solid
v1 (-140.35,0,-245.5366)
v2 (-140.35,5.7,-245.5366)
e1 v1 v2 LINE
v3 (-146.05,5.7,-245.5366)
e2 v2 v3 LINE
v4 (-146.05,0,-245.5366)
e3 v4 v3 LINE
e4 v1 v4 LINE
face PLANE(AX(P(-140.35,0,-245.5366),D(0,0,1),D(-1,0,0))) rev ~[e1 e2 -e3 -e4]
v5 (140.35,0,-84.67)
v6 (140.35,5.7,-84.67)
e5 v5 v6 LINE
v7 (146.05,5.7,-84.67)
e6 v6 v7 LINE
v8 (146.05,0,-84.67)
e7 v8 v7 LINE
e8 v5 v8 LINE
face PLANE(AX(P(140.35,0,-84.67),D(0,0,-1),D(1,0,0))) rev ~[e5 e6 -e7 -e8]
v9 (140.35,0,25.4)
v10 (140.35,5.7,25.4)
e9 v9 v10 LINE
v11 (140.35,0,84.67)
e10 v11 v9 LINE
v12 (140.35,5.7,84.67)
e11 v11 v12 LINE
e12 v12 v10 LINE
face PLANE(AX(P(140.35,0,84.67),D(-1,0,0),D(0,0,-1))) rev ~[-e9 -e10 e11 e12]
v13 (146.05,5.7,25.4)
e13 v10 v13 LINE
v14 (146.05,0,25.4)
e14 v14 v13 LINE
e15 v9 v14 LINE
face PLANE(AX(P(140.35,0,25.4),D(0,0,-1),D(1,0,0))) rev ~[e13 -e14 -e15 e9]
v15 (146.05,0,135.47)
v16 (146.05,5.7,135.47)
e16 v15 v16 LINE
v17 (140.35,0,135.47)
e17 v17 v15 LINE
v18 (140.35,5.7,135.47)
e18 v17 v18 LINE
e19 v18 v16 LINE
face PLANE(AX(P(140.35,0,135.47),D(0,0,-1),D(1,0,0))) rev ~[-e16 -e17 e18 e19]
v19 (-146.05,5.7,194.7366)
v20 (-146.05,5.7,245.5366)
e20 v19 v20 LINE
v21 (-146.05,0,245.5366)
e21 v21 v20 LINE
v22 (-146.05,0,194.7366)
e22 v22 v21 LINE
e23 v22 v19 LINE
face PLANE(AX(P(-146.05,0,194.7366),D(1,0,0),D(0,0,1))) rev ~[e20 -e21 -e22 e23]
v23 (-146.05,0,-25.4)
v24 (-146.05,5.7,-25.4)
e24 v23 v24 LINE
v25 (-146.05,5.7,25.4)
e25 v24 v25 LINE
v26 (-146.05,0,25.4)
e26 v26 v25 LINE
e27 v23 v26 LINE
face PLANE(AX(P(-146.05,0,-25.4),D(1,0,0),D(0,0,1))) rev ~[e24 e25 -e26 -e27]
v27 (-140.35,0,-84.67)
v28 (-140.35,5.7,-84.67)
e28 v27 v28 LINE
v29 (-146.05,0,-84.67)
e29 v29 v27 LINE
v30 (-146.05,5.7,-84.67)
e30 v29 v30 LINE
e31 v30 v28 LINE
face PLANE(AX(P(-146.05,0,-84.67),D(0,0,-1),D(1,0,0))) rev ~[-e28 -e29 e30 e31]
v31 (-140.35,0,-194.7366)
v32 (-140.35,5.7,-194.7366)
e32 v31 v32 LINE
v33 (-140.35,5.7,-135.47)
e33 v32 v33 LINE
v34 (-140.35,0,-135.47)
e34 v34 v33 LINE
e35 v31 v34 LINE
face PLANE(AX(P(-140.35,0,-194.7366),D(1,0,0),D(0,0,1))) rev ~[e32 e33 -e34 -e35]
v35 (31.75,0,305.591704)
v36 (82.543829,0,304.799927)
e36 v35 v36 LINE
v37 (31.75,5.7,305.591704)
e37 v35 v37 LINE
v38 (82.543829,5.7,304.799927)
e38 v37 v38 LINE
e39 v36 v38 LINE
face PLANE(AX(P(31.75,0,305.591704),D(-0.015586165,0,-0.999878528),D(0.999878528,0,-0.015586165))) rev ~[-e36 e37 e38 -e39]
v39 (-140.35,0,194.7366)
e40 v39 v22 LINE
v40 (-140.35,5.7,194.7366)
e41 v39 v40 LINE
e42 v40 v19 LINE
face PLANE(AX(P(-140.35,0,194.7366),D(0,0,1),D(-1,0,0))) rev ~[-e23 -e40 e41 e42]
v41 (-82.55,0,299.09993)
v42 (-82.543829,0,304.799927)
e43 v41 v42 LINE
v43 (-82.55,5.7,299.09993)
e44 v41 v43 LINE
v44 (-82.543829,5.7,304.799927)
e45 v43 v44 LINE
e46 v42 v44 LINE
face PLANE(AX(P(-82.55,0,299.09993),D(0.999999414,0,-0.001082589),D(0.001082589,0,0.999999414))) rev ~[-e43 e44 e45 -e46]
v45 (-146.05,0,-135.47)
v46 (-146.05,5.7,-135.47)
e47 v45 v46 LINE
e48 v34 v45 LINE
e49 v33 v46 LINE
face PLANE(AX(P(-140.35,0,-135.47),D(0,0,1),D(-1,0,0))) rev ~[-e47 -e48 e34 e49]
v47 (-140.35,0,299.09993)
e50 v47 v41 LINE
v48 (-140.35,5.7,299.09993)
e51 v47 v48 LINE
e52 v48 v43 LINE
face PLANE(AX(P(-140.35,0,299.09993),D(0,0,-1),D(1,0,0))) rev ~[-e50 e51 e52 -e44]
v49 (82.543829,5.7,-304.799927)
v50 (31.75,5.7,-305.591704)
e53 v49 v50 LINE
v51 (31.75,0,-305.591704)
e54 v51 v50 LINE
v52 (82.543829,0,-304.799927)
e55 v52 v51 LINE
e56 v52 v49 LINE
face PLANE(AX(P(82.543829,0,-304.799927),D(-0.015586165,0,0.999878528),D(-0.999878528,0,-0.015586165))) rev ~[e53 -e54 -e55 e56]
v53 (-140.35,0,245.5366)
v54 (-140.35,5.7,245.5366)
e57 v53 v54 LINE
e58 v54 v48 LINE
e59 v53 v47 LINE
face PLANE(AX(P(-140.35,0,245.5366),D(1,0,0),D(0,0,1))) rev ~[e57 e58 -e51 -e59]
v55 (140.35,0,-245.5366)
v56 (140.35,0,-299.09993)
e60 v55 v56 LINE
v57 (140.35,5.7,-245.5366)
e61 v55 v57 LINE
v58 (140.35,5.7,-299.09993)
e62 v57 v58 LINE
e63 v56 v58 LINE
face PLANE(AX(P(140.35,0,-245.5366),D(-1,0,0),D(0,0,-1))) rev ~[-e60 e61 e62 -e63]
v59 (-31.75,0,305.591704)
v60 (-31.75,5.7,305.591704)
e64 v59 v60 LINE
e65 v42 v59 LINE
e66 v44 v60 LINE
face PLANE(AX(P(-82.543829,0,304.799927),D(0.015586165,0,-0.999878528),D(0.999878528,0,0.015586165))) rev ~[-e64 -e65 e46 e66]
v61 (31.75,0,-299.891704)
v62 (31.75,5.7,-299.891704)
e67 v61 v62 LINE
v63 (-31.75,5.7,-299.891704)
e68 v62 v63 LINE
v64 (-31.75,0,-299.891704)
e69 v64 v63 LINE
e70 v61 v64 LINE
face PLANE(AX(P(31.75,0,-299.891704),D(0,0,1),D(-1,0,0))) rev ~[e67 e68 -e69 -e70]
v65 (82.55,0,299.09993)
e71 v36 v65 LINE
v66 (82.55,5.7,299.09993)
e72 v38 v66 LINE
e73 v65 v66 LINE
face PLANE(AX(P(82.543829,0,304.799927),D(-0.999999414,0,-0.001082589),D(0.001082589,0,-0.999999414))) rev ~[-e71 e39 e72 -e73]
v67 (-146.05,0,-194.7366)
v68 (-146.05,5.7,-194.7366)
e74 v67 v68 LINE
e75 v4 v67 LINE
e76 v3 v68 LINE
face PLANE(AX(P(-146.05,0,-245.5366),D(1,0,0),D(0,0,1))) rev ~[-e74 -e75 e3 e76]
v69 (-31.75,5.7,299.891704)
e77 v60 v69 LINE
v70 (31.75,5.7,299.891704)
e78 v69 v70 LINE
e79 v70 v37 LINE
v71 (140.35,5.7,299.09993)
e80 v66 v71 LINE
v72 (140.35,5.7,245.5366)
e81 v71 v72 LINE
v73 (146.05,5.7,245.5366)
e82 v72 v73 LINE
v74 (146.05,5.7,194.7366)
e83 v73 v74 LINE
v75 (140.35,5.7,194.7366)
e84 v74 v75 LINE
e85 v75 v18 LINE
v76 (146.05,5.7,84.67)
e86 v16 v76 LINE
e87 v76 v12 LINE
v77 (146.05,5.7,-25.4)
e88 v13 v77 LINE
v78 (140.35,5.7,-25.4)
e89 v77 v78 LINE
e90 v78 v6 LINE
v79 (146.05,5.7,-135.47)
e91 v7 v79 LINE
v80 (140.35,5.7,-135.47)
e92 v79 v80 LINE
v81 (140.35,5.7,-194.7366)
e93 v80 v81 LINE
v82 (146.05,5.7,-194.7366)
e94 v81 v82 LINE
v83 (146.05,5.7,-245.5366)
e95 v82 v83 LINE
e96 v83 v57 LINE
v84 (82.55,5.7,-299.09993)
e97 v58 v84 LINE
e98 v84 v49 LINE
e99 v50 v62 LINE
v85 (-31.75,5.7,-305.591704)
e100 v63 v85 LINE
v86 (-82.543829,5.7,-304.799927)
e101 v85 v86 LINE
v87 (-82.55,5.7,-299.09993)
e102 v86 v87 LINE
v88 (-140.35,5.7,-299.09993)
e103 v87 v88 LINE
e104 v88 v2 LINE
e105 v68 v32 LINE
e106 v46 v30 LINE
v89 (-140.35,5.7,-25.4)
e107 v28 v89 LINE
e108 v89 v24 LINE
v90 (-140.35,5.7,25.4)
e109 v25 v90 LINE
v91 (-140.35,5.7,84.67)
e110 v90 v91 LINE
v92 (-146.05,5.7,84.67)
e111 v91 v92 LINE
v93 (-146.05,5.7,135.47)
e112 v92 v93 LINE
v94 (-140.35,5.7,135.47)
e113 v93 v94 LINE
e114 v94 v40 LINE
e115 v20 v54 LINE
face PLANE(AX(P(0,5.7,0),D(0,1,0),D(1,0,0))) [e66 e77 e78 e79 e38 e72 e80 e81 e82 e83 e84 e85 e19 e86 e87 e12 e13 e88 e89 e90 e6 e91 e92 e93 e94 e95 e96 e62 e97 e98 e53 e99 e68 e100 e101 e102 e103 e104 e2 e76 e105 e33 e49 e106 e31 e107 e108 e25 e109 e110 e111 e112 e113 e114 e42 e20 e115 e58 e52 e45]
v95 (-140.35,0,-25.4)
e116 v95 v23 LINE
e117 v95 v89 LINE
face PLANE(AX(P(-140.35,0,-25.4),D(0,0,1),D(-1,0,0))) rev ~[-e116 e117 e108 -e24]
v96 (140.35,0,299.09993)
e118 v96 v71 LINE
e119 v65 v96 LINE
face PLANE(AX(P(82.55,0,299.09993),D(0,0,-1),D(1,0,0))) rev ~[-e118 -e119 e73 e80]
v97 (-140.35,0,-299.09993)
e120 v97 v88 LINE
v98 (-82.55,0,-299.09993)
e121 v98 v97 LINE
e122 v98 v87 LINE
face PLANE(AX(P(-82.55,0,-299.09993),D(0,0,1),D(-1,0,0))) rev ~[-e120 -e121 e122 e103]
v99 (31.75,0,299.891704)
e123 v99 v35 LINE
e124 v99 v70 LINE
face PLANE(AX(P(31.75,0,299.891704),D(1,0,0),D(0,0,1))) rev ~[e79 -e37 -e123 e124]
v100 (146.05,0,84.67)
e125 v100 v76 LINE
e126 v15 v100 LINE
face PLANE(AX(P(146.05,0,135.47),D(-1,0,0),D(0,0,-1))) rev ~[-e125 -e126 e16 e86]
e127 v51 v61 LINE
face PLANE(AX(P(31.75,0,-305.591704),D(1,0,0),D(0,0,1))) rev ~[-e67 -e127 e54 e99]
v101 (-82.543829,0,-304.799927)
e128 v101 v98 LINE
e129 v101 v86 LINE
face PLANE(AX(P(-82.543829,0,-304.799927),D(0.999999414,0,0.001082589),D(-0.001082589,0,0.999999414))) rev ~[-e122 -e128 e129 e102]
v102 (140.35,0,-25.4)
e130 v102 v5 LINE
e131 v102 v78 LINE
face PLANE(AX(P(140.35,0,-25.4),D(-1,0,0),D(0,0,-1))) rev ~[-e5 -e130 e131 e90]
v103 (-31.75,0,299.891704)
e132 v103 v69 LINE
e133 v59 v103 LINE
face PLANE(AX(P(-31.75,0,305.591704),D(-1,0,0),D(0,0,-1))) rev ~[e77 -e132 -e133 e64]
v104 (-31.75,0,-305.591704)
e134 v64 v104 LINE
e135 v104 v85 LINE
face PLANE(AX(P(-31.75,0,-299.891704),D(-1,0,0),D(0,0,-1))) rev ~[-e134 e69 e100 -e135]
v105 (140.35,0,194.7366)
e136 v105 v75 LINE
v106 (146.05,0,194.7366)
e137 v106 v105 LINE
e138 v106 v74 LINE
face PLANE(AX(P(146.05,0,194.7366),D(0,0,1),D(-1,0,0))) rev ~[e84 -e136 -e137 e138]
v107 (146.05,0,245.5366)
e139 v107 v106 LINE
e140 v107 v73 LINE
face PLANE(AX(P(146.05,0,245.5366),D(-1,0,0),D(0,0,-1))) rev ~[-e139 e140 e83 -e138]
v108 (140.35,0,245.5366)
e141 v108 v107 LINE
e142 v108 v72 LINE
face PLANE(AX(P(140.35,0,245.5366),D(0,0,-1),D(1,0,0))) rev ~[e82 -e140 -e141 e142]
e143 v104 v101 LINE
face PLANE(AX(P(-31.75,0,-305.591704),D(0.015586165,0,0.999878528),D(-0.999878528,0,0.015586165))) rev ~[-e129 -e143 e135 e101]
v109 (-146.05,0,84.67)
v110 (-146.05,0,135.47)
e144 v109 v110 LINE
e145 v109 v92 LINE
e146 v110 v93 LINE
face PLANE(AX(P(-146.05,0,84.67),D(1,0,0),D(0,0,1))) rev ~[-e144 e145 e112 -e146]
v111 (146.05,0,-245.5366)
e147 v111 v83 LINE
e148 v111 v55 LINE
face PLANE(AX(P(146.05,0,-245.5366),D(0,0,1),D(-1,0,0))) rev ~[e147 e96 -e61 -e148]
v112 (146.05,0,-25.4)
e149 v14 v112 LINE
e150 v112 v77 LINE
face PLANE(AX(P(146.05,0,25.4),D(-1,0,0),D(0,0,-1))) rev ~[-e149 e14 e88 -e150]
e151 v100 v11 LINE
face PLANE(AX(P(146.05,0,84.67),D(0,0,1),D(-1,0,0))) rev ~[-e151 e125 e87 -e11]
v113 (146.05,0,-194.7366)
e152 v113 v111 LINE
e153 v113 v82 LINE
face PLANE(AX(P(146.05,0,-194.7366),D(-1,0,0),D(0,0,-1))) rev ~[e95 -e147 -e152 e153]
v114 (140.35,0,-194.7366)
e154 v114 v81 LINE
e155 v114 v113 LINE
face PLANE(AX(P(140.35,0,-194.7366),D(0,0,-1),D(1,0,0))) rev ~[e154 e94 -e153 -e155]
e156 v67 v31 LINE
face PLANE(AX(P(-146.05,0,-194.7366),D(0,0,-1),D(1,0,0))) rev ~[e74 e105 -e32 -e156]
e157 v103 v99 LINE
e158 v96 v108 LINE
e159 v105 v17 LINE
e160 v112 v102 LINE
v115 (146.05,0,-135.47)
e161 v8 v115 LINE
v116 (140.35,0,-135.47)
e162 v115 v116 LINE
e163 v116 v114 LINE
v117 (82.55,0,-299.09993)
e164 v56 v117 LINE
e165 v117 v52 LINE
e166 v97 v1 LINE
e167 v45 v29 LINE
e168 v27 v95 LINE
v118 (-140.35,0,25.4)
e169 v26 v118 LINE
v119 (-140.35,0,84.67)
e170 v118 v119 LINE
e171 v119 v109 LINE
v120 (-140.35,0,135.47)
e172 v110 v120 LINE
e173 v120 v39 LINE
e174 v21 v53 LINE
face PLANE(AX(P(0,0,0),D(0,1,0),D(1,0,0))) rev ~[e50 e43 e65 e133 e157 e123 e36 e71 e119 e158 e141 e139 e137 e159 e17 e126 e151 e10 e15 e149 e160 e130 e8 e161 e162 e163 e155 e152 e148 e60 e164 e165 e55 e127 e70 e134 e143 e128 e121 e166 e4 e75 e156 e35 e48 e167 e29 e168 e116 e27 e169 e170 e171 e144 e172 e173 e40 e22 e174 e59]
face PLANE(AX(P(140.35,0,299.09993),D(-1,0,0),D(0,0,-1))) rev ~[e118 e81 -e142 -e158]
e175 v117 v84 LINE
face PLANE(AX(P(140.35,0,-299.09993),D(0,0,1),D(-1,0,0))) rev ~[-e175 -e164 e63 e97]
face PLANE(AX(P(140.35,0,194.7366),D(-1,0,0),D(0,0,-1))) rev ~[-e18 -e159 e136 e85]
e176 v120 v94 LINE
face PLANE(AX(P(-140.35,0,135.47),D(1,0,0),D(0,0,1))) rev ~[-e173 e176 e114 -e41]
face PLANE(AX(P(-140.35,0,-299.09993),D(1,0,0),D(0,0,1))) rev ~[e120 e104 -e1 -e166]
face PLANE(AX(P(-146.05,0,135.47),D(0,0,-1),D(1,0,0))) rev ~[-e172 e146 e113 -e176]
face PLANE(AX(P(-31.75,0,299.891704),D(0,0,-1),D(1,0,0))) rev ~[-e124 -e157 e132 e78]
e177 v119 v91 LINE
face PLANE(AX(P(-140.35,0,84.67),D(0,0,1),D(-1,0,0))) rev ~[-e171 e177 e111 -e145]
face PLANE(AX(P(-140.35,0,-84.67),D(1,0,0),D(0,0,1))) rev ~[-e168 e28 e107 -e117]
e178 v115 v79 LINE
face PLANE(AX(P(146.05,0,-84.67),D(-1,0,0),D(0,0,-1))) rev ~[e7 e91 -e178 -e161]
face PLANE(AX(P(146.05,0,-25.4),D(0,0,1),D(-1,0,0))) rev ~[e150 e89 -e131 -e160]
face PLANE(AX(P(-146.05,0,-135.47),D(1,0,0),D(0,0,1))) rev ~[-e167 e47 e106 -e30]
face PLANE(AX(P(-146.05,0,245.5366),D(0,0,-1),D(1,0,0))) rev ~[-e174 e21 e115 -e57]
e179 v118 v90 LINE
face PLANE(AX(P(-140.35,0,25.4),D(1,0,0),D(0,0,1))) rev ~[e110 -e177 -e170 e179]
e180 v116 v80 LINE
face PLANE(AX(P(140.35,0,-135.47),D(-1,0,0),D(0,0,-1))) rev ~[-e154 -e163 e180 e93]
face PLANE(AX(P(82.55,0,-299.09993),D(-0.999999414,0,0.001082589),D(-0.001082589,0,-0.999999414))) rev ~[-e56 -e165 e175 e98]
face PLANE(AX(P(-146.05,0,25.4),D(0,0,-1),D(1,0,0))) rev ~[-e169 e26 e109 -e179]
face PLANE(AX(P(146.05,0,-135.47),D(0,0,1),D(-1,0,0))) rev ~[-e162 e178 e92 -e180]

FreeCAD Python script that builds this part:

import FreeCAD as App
import Part
import Sketcher
from FreeCAD import Vector
Q = App.Units.Quantity


def add_polygon(sketch, points):
    """Adds a closed chain of lines whose ends are joined by coincident constraints."""
    first, n = sketch.GeometryCount, len(points)
    for a, b in zip(points, points[1:] + points[:1]):
        sketch.addGeometry(Part.LineSegment(App.Vector(*a, 0), App.Vector(*b, 0)), False)
    for i in range(n):
        sketch.addConstraint(Sketcher.Constraint("Coincident", first + i, 2, first + (i + 1) % n, 1))

doc = App.newDocument("Part")
body = doc.addObject("PartDesign::Body", "Body")

# Sketch on XZ plane
sketch1 = body.newObject("Sketcher::SketchObject", "Sketch")
sketch1.AttachmentSupport = (doc.getObject("XZ_Plane"), [""])
sketch1.MapMode = "FlatFace"
add_polygon(sketch1, [(32, -300), (-32, -300), (-32, -306), (-83, -305), (-83, -299), (-140, -299), (-140, -246), (-146, -246), (-146, -195), (-140, -195), (-140, -135), (-146, -135), (-146, -85), (-140, -85), (-140, -25), (-146, -25), (-146, 25), (-140, 25), (-140, 85), (-146, 85), (-146, 135), (-140, 135), (-140, 195), (-146, 195), (-146, 246), (-140, 246), (-140, 299), (-83, 299), (-83, 305), (-32, 306), (-32, 300), (32, 300), (32, 306), (83, 305), (83, 299), (140, 299), (140, 246), (146, 246), (146, 195), (140, 195), (140, 135), (146, 135), (146, 85), (140, 85), (140, 25), (146, 25), (146, -25), (140, -25), (140, -85), (146, -85), (146, -135), (140, -135), (140, -195), (146, -195), (146, -246), (140, -246), (140, -299), (83, -299), (83, -305), (32, -306)])  # lines 0-59
sketch1.addConstraint(Sketcher.Constraint("Horizontal", 0))
sketch1.addConstraint(Sketcher.Constraint("Vertical", 1))
sketch1.addConstraint(Sketcher.Constraint("Horizontal", 4))
sketch1.addConstraint(Sketcher.Constraint("Vertical", 5))
sketch1.addConstraint(Sketcher.Constraint("Horizontal", 6))
sketch1.addConstraint(Sketcher.Constraint("Vertical", 7))
sketch1.addConstraint(Sketcher.Constraint("Horizontal", 8))
sketch1.addConstraint(Sketcher.Constraint("Vertical", 9))
sketch1.addConstraint(Sketcher.Constraint("Horizontal", 10))
sketch1.addConstraint(Sketcher.Constraint("Vertical", 11))
sketch1.addConstraint(Sketcher.Constraint("Horizontal", 12))
sketch1.addConstraint(Sketcher.Constraint("Vertical", 13))
sketch1.addConstraint(Sketcher.Constraint("Horizontal", 14))
sketch1.addConstraint(Sketcher.Constraint("Vertical", 15))
sketch1.addConstraint(Sketcher.Constraint("Horizontal", 16))
sketch1.addConstraint(Sketcher.Constraint("Vertical", 17))
sketch1.addConstraint(Sketcher.Constraint("Horizontal", 18))
sketch1.addConstraint(Sketcher.Constraint("Vertical", 19))
sketch1.addConstraint(Sketcher.Constraint("Horizontal", 20))
sketch1.addConstraint(Sketcher.Constraint("Vertical", 21))
sketch1.addConstraint(Sketcher.Constraint("Horizontal", 22))
sketch1.addConstraint(Sketcher.Constraint("Vertical", 23))
sketch1.addConstraint(Sketcher.Constraint("Horizontal", 24))
sketch1.addConstraint(Sketcher.Constraint("Vertical", 25))
sketch1.addConstraint(Sketcher.Constraint("Horizontal", 26))
sketch1.addConstraint(Sketcher.Constraint("Vertical", 29))
sketch1.addConstraint(Sketcher.Constraint("Horizontal", 30))
sketch1.addConstraint(Sketcher.Constraint("Vertical", 31))
sketch1.addConstraint(Sketcher.Constraint("Horizontal", 34))
sketch1.addConstraint(Sketcher.Constraint("Vertical", 35))
sketch1.addConstraint(Sketcher.Constraint("Horizontal", 36))
sketch1.addConstraint(Sketcher.Constraint("Vertical", 37))
sketch1.addConstraint(Sketcher.Constraint("Horizontal", 38))
sketch1.addConstraint(Sketcher.Constraint("Vertical", 39))
sketch1.addConstraint(Sketcher.Constraint("Horizontal", 40))
sketch1.addConstraint(Sketcher.Constraint("Vertical", 41))
sketch1.addConstraint(Sketcher.Constraint("Horizontal", 42))
sketch1.addConstraint(Sketcher.Constraint("Vertical", 43))
sketch1.addConstraint(Sketcher.Constraint("Horizontal", 44))
sketch1.addConstraint(Sketcher.Constraint("Vertical", 45))
sketch1.addConstraint(Sketcher.Constraint("Horizontal", 46))
sketch1.addConstraint(Sketcher.Constraint("Vertical", 47))
sketch1.addConstraint(Sketcher.Constraint("Horizontal", 48))
sketch1.addConstraint(Sketcher.Constraint("Vertical", 49))
sketch1.addConstraint(Sketcher.Constraint("Horizontal", 50))
sketch1.addConstraint(Sketcher.Constraint("Vertical", 51))
sketch1.addConstraint(Sketcher.Constraint("Horizontal", 52))
sketch1.addConstraint(Sketcher.Constraint("Vertical", 53))
sketch1.addConstraint(Sketcher.Constraint("Horizontal", 54))
sketch1.addConstraint(Sketcher.Constraint("Vertical", 55))
sketch1.addConstraint(Sketcher.Constraint("Horizontal", 56))
sketch1.addConstraint(Sketcher.Constraint("Vertical", 59))
sketch1.addConstraint(Sketcher.Constraint("Symmetric", 0, 2, 30, 2, -1, 1))
sketch1.addConstraint(Sketcher.Constraint("Symmetric", 2, 2, 32, 2, -1, 1))
sketch1.addConstraint(Sketcher.Constraint("Symmetric", 3, 2, 33, 2, -1, 1))
sketch1.addConstraint(Sketcher.Constraint("Symmetric", 5, 2, 35, 2, -1, 1))
sketch1.addConstraint(Sketcher.Constraint("Symmetric", 7, 2, 37, 2, -1, 1))
sketch1.addConstraint(Sketcher.Constraint("Symmetric", 9, 2, 39, 2, -1, 1))
sketch1.addConstraint(Sketcher.Constraint("Symmetric", 11, 2, 41, 2, -1, 1))
sketch1.addConstraint(Sketcher.Constraint("Symmetric", 13, 2, 43, 2, -1, 1))
sketch1.addConstraint(Sketcher.Constraint("Symmetric", 15, 2, 45, 2, -1, 1))
sketch1.addConstraint(Sketcher.Constraint("Symmetric", 17, 2, 47, 2, -1, 1))
sketch1.addConstraint(Sketcher.Constraint("Symmetric", 19, 2, 49, 2, -1, 1))
sketch1.addConstraint(Sketcher.Constraint("Symmetric", 21, 2, 51, 2, -1, 1))
sketch1.addConstraint(Sketcher.Constraint("Symmetric", 23, 2, 53, 2, -1, 1))
sketch1.addConstraint(Sketcher.Constraint("Symmetric", 25, 2, 55, 2, -1, 1))
sketch1.addConstraint(Sketcher.Constraint("Symmetric", 27, 2, 57, 2, -1, 1))
sketch1.addConstraint(Sketcher.Constraint("Symmetric", 28, 2, 58, 2, -1, 1))
sketch1.addConstraint(Sketcher.Constraint("Symmetric", 28, 2, 31, 2, -2))
sketch1.addConstraint(Sketcher.Constraint("Symmetric", 27, 2, 32, 2, -2))
sketch1.addConstraint(Sketcher.Constraint("Symmetric", 26, 2, 33, 2, -2))
sketch1.addConstraint(Sketcher.Constraint("Symmetric", 24, 2, 35, 2, -2))
sketch1.addConstraint(Sketcher.Constraint("Symmetric", 22, 2, 37, 2, -2))
sketch1.addConstraint(Sketcher.Constraint("Symmetric", 20, 2, 39, 2, -2))
sketch1.addConstraint(Sketcher.Constraint("Symmetric", 18, 2, 41, 2, -2))
sketch1.addConstraint(Sketcher.Constraint("Symmetric", 16, 2, 43, 2, -2))
sketch1.addConstraint(Sketcher.Constraint("Parallel", 2, 32))
sketch1.addConstraint(Sketcher.Constraint("Parallel", 27, 57))
sketch1.addConstraint(Sketcher.Constraint("Vertical", 5, 2, 8, 2))
sketch1.addConstraint(Sketcher.Constraint("Vertical", 7, 2, 10, 2))
sketch1.addConstraint(Sketcher.Constraint("Vertical", 9, 2, 12, 2))
sketch1.addConstraint(Sketcher.Constraint("Vertical", 11, 2, 14, 2))
sketch1.addConstraint(Sketcher.Constraint("Equal", 54, 1))
sketch1.addConstraint(Sketcher.Constraint("Equal", 7, 11))
sketch1.addConstraint(Sketcher.Constraint("Equal", 11, 15))
sketch1.addConstraint(Sketcher.Constraint("DistanceX", 0, 2, 0, 1, Q("63.5 mm")))
sketch1.addConstraint(Sketcher.Constraint("DistanceX", 4, 2, 4, 1, Q("57.8 mm")))
sketch1.addConstraint(Sketcher.Constraint("DistanceX", 6, 2, 6, 1, Q("5.7 mm")))
sketch1.addConstraint(Sketcher.Constraint("DistanceY", 7, 1, 7, 2, Q("50.8 mm")))
sketch1.addConstraint(Sketcher.Constraint("Distance", 2, Q("50.8 mm")))
sketch1.addConstraint(Sketcher.Constraint("Distance", 3, Q("5.7 mm")))
sketch1.addConstraint(Sketcher.Constraint("DistanceY", 13, 1, 13, 2, Q("59.27 mm")))
sketch1.addConstraint(Sketcher.Constraint("DistanceX", 3, 2, 0, 2, Q("50.8 mm")))
sketch1.addConstraint(Sketcher.Constraint("DistanceY", 9, 1, 9, 2, Q("59.2666 mm")))
sketch1.addConstraint(Sketcher.Constraint("DistanceY", 5, 1, 5, 2, Q("53.56333 mm")))
sketch1.addConstraint(Sketcher.Constraint("DistanceX", 2, 2, -1, 1, Q("82.543829 mm")))
pad1 = body.newObject("PartDesign::Pad", "Pad")
pad1.Profile = sketch1
pad1.Length = 5.7
pad1.Reversed = True

doc.recompute()
